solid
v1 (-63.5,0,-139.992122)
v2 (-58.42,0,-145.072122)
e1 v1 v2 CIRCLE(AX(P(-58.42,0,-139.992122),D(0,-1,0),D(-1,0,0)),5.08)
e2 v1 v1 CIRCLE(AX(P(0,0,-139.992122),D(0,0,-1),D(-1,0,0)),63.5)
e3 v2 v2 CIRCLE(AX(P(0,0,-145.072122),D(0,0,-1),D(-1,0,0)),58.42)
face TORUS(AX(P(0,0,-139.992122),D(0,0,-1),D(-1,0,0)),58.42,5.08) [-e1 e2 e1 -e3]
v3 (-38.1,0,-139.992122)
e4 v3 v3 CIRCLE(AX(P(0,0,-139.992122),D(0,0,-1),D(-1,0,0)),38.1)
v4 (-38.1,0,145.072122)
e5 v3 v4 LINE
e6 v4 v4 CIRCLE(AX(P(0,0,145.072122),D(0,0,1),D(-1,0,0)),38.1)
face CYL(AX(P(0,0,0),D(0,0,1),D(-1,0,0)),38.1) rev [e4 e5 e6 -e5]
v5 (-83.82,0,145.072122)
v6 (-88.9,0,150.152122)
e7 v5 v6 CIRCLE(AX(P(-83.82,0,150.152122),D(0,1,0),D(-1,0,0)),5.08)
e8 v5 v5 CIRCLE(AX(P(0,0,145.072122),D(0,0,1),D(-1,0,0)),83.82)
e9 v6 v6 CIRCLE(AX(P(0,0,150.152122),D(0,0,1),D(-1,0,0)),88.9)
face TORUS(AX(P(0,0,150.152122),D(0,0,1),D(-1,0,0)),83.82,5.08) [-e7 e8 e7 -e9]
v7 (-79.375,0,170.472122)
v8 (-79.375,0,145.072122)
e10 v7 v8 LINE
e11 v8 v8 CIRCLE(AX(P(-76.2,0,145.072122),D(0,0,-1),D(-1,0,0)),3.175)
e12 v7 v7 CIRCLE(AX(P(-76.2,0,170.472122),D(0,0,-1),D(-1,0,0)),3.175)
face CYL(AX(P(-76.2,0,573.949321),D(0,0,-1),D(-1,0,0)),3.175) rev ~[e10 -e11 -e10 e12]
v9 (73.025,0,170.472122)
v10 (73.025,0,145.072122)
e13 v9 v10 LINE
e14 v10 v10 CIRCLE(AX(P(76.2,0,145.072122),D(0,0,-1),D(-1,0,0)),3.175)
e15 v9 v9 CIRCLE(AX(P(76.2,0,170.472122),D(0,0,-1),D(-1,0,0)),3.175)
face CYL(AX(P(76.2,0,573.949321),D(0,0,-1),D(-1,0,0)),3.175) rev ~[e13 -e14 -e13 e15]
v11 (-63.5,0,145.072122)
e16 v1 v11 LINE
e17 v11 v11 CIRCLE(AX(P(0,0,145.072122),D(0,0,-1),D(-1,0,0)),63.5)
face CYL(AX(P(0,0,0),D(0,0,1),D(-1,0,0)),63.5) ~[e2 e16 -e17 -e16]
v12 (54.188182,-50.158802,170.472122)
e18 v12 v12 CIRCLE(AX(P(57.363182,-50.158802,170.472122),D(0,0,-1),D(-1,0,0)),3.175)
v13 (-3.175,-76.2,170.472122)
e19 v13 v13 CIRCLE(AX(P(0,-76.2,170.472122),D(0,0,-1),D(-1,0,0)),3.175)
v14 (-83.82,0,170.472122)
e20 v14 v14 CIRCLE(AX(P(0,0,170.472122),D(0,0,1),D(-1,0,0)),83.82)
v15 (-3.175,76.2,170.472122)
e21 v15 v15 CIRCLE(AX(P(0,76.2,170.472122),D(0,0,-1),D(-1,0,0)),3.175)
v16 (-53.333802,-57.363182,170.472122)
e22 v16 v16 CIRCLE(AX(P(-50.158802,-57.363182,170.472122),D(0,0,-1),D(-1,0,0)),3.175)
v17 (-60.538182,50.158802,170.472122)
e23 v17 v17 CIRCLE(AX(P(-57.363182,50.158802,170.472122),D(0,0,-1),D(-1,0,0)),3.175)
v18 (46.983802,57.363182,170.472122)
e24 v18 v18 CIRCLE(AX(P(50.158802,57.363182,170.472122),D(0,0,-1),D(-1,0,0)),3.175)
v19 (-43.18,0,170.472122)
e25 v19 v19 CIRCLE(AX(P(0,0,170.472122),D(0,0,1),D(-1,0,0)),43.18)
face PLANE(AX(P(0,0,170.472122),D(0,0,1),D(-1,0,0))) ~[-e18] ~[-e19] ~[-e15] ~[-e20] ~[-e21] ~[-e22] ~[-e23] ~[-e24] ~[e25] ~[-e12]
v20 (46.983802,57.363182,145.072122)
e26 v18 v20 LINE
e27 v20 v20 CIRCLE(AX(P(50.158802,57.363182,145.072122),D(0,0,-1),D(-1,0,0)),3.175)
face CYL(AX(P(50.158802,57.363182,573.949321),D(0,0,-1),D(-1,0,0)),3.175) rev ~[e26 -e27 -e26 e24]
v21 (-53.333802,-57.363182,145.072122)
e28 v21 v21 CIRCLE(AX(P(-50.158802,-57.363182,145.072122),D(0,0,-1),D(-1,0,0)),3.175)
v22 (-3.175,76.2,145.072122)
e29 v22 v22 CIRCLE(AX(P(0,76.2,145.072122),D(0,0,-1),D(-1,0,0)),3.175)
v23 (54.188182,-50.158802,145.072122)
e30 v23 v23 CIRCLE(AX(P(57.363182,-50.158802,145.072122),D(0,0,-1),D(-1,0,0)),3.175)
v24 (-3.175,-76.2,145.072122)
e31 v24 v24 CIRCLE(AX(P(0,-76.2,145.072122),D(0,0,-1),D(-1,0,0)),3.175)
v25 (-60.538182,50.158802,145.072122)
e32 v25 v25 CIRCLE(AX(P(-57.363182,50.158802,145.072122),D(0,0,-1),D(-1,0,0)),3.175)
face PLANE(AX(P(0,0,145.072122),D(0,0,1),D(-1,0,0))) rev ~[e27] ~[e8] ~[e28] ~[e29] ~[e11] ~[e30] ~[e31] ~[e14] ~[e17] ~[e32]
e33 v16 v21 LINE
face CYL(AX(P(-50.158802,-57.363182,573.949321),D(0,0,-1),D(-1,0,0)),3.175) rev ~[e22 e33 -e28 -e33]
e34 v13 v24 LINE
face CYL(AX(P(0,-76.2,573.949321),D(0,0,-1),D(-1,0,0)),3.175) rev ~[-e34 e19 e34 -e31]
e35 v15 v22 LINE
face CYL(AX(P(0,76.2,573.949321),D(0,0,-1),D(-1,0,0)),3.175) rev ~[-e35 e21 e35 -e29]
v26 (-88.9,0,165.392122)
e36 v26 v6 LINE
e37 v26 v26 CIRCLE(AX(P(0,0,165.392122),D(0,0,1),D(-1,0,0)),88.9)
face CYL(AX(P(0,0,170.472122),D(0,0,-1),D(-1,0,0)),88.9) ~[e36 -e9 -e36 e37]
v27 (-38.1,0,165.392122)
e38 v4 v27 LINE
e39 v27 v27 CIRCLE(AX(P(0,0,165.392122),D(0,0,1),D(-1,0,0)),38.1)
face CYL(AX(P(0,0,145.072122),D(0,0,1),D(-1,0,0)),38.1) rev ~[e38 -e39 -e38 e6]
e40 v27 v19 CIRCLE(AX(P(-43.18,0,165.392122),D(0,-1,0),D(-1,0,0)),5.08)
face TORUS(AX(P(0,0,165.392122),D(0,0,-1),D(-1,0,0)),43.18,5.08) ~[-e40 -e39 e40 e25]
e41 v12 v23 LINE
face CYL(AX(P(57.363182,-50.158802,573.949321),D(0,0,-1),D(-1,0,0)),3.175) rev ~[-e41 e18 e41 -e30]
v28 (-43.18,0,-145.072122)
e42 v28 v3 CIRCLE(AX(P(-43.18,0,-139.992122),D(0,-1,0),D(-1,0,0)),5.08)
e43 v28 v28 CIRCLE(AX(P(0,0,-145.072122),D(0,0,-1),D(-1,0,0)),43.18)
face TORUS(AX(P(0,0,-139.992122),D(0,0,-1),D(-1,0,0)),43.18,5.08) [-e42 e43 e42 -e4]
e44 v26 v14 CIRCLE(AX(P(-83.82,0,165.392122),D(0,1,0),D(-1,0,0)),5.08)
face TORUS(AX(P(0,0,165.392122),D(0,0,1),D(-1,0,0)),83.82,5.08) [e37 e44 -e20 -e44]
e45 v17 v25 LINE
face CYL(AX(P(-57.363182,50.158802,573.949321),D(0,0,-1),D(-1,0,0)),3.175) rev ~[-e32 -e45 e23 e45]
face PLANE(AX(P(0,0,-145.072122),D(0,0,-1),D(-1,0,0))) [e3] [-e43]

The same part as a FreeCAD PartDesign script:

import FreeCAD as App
import Part
import Sketcher
from FreeCAD import Vector
Q = App.Units.Quantity


def edges_at(feature, points):
    """Names of the edges that pass closest to the given points."""
    edges = feature.Shape.Edges
    near = lambda p: min(range(len(edges)), key=lambda i: edges[i].distToShape(Part.Vertex(*p))[0])
    return sorted({f"Edge{near(p) + 1}" for p in points})


def add_polygon(sketch, points):
    """Adds a closed chain of lines whose ends are joined by coincident constraints."""
    first, n = sketch.GeometryCount, len(points)
    for a, b in zip(points, points[1:] + points[:1]):
        sketch.addGeometry(Part.LineSegment(App.Vector(*a, 0), App.Vector(*b, 0)), False)
    for i in range(n):
        sketch.addConstraint(Sketcher.Constraint("Coincident", first + i, 2, first + (i + 1) % n, 1))

doc = App.newDocument("Part")
body = doc.addObject("PartDesign::Body", "Body")

# Sketch on XZ plane
sketch1 = doc.addObject("Sketcher::SketchObject", "Sketch")
body.addObject(sketch1)
sketch1.AttachmentSupport = (doc.XZ_Plane, [""])
sketch1.MapMode = "FlatFace"
add_polygon(sketch1, [(-38, 145), (-38, 170), (-89, 170), (-89, 145)])  # lines 0-3
sketch1.addConstraint([
    Sketcher.Constraint("Vertical", 0),
    Sketcher.Constraint("Horizontal", 1),
    Sketcher.Constraint("Vertical", 2),
    Sketcher.Constraint("Horizontal", 3),
    Sketcher.Constraint("DistanceX", 1, 2, 1, 1, Q("2 in")),
    Sketcher.Constraint("DistanceY", 0, 1, 0, 2, Q("1 in")),
    Sketcher.Constraint("DistanceX", 0, 2, -1, 1, Q("1.5 in")),
    Sketcher.Constraint("DistanceY", -1, 1, 2, 2, Q("145.072122 mm")),
])
revolution = doc.addObject("PartDesign::Revolution", "Revolution")
body.addObject(revolution)
revolution.Profile = sketch1
revolution.ReferenceAxis = (sketch1, ["V_Axis"])
revolution.Angle = 360

# Sketch on XZ plane
sketch2 = doc.addObject("Sketcher::SketchObject", "Sketch001")
body.addObject(sketch2)
sketch2.AttachmentSupport = (doc.XZ_Plane, [""])
sketch2.MapMode = "FlatFace"
add_polygon(sketch2, [(-64, 145), (-64, -145), (-38, -145), (-38, 145)])  # lines 0-3
sketch2.addConstraint([
    Sketcher.Constraint("Vertical", 0),
    Sketcher.Constraint("Horizontal", 1),
    Sketcher.Constraint("Vertical", 2),
    Sketcher.Constraint("Horizontal", 3),
    Sketcher.Constraint("DistanceX", 1, 1, 1, 2, Q("1 in")),
    Sketcher.Constraint("DistanceX", 0, 2, -1, 1, Q("2.5 in")),
    Sketcher.Constraint("DistanceY", 0, 2, 0, 1, Q("290.144244 mm")),
    Sketcher.Constraint("DistanceY", 0, 2, -1, 1, Q("145.072122 mm")),
])
revolution2 = doc.addObject("PartDesign::Revolution", "Revolution001")
body.addObject(revolution2)
revolution2.Profile = sketch2
revolution2.ReferenceAxis = (sketch2, ["V_Axis"])
revolution2.Angle = 360
doc.recompute()

fillet = doc.addObject("PartDesign::Fillet", "Fillet")
body.addObject(fillet)
fillet.Base = (revolution2, edges_at(revolution2, [
    (88.9, 0, 170.472),
    (88.9, 0, 145.072),
    (38.1, 0, 170.472),
    (63.5, 0, -145.072),
]))
fillet.Radius = Q("0.2 in")
doc.recompute()

fillet2 = doc.addObject("PartDesign::Fillet", "Fillet001")
body.addObject(fillet2)
fillet2.Base = (fillet, edges_at(fillet, [(38.1, 0, -145.072)]))
fillet2.Radius = Q("0.2 in")

# Sketch on XY plane
sketch3 = doc.addObject("Sketcher::SketchObject", "Sketch002")
body.addObject(sketch3)
sketch3.AttachmentSupport = (doc.XY_Plane, [""])
sketch3.MapMode = "FlatFace"
sketch3.AttachmentOffset = App.Placement(Vector(0, 0, 170.472122), App.Rotation())
sketch3.addGeometry([
    Part.Circle(Vector(-76.2, 0, 0), Vector(0, 0, 1), 3.2),
    Part.Circle(Vector(0, 76.2, 0), Vector(0, 0, 1), 3.2),
], False)
sketch3.addConstraint([
    Sketcher.Constraint("Equal", 0, 1),
    Sketcher.Constraint("PointOnObject", 0, 3, -1),
    Sketcher.Constraint("PointOnObject", 1, 3, -2),
    Sketcher.Constraint("Diameter", 0, Q("0.25 in")),
    Sketcher.Constraint("DistanceX", 0, 3, -1, 1, Q("3 in")),
    Sketcher.Constraint("DistanceY", -1, 1, 1, 3, Q("3 in")),
])
doc.recompute()
hole = doc.addObject("PartDesign::Hole", "Hole")
body.addObject(hole)
hole.Profile = sketch3
hole.ThreadType = "None"
hole.Diameter = Q("0.25 in")
hole.DepthType = "ThroughAll"

# Sketch on XY plane
sketch4 = doc.addObject("Sketcher::SketchObject", "Sketch003")
body.addObject(sketch4)
sketch4.AttachmentSupport = (doc.XY_Plane, [""])
sketch4.MapMode = "FlatFace"
sketch4.AttachmentOffset = App.Placement(Vector(0, 0, 170.472122), App.Rotation())
sketch4.addGeometry([
    Part.Circle(Vector(0, -76.2, 0), Vector(0, 0, 1), 3.2),
    Part.Circle(Vector(76.2, 0, 0), Vector(0, 0, 1), 3.2),
], False)
sketch4.addConstraint([
    Sketcher.Constraint("Equal", 0, 1),
    Sketcher.Constraint("PointOnObject", 0, 3, -2),
    Sketcher.Constraint("PointOnObject", 1, 3, -1),
    Sketcher.Constraint("Diameter", 0, Q("0.25 in")),
    Sketcher.Constraint("DistanceY", 0, 3, -1, 1, Q("3 in")),
    Sketcher.Constraint("DistanceX", -1, 1, 1, 3, Q("3 in")),
])
doc.recompute()
hole2 = doc.addObject("PartDesign::Hole", "Hole001")
body.addObject(hole2)
hole2.Profile = sketch4
hole2.ThreadType = "None"
hole2.Diameter = Q("0.25 in")
hole2.DepthType = "ThroughAll"

# Sketch on XY plane
sketch5 = doc.addObject("Sketcher::SketchObject", "Sketch004")
body.addObject(sketch5)
sketch5.AttachmentSupport = (doc.XY_Plane, [""])
sketch5.MapMode = "FlatFace"
sketch5.AttachmentOffset = App.Placement(Vector(0, 0, 170.472122), App.Rotation())
sketch5.addGeometry([
    Part.Circle(Vector(-57.4, 50.2, 0), Vector(0, 0, 1), 3.2),
    Part.Circle(Vector(50.2, 57.4, 0), Vector(0, 0, 1), 3.2),
    Part.Circle(Vector(57.4, -50.2, 0), Vector(0, 0, 1), 3.2),
    Part.Circle(Vector(-50.2, -57.4, 0), Vector(0, 0, 1), 3.2),
], False)
sketch5.addConstraint([
    Sketcher.Constraint("Equal", 0, 1),
    Sketcher.Constraint("Equal", 1, 2),
    Sketcher.Constraint("Equal", 2, 3),
    Sketcher.Constraint("Symmetric", 0, 3, 2, 3, -1, 1),
    Sketcher.Constraint("Symmetric", 1, 3, 3, 3, -1, 1),
    Sketcher.Constraint("Diameter", 0, Q("0.25 in")),
    Sketcher.Constraint("DistanceY", 0, 3, 1, 3, Q("7.20438 mm")),
    Sketcher.Constraint("DistanceX", 1, 3, 2, 3, Q("7.20438 mm")),
    Sketcher.Constraint("DistanceX", 0, 3, -1, 1, Q("57.363182 mm")),
    Sketcher.Constraint("DistanceY", -1, 1, 0, 3, Q("50.158802 mm")),
])
doc.recompute()
hole3 = doc.addObject("PartDesign::Hole", "Hole002")
body.addObject(hole3)
hole3.Profile = sketch5
hole3.ThreadType = "None"
hole3.Diameter = Q("0.25 in")
hole3.DepthType = "ThroughAll"

doc.recompute()
